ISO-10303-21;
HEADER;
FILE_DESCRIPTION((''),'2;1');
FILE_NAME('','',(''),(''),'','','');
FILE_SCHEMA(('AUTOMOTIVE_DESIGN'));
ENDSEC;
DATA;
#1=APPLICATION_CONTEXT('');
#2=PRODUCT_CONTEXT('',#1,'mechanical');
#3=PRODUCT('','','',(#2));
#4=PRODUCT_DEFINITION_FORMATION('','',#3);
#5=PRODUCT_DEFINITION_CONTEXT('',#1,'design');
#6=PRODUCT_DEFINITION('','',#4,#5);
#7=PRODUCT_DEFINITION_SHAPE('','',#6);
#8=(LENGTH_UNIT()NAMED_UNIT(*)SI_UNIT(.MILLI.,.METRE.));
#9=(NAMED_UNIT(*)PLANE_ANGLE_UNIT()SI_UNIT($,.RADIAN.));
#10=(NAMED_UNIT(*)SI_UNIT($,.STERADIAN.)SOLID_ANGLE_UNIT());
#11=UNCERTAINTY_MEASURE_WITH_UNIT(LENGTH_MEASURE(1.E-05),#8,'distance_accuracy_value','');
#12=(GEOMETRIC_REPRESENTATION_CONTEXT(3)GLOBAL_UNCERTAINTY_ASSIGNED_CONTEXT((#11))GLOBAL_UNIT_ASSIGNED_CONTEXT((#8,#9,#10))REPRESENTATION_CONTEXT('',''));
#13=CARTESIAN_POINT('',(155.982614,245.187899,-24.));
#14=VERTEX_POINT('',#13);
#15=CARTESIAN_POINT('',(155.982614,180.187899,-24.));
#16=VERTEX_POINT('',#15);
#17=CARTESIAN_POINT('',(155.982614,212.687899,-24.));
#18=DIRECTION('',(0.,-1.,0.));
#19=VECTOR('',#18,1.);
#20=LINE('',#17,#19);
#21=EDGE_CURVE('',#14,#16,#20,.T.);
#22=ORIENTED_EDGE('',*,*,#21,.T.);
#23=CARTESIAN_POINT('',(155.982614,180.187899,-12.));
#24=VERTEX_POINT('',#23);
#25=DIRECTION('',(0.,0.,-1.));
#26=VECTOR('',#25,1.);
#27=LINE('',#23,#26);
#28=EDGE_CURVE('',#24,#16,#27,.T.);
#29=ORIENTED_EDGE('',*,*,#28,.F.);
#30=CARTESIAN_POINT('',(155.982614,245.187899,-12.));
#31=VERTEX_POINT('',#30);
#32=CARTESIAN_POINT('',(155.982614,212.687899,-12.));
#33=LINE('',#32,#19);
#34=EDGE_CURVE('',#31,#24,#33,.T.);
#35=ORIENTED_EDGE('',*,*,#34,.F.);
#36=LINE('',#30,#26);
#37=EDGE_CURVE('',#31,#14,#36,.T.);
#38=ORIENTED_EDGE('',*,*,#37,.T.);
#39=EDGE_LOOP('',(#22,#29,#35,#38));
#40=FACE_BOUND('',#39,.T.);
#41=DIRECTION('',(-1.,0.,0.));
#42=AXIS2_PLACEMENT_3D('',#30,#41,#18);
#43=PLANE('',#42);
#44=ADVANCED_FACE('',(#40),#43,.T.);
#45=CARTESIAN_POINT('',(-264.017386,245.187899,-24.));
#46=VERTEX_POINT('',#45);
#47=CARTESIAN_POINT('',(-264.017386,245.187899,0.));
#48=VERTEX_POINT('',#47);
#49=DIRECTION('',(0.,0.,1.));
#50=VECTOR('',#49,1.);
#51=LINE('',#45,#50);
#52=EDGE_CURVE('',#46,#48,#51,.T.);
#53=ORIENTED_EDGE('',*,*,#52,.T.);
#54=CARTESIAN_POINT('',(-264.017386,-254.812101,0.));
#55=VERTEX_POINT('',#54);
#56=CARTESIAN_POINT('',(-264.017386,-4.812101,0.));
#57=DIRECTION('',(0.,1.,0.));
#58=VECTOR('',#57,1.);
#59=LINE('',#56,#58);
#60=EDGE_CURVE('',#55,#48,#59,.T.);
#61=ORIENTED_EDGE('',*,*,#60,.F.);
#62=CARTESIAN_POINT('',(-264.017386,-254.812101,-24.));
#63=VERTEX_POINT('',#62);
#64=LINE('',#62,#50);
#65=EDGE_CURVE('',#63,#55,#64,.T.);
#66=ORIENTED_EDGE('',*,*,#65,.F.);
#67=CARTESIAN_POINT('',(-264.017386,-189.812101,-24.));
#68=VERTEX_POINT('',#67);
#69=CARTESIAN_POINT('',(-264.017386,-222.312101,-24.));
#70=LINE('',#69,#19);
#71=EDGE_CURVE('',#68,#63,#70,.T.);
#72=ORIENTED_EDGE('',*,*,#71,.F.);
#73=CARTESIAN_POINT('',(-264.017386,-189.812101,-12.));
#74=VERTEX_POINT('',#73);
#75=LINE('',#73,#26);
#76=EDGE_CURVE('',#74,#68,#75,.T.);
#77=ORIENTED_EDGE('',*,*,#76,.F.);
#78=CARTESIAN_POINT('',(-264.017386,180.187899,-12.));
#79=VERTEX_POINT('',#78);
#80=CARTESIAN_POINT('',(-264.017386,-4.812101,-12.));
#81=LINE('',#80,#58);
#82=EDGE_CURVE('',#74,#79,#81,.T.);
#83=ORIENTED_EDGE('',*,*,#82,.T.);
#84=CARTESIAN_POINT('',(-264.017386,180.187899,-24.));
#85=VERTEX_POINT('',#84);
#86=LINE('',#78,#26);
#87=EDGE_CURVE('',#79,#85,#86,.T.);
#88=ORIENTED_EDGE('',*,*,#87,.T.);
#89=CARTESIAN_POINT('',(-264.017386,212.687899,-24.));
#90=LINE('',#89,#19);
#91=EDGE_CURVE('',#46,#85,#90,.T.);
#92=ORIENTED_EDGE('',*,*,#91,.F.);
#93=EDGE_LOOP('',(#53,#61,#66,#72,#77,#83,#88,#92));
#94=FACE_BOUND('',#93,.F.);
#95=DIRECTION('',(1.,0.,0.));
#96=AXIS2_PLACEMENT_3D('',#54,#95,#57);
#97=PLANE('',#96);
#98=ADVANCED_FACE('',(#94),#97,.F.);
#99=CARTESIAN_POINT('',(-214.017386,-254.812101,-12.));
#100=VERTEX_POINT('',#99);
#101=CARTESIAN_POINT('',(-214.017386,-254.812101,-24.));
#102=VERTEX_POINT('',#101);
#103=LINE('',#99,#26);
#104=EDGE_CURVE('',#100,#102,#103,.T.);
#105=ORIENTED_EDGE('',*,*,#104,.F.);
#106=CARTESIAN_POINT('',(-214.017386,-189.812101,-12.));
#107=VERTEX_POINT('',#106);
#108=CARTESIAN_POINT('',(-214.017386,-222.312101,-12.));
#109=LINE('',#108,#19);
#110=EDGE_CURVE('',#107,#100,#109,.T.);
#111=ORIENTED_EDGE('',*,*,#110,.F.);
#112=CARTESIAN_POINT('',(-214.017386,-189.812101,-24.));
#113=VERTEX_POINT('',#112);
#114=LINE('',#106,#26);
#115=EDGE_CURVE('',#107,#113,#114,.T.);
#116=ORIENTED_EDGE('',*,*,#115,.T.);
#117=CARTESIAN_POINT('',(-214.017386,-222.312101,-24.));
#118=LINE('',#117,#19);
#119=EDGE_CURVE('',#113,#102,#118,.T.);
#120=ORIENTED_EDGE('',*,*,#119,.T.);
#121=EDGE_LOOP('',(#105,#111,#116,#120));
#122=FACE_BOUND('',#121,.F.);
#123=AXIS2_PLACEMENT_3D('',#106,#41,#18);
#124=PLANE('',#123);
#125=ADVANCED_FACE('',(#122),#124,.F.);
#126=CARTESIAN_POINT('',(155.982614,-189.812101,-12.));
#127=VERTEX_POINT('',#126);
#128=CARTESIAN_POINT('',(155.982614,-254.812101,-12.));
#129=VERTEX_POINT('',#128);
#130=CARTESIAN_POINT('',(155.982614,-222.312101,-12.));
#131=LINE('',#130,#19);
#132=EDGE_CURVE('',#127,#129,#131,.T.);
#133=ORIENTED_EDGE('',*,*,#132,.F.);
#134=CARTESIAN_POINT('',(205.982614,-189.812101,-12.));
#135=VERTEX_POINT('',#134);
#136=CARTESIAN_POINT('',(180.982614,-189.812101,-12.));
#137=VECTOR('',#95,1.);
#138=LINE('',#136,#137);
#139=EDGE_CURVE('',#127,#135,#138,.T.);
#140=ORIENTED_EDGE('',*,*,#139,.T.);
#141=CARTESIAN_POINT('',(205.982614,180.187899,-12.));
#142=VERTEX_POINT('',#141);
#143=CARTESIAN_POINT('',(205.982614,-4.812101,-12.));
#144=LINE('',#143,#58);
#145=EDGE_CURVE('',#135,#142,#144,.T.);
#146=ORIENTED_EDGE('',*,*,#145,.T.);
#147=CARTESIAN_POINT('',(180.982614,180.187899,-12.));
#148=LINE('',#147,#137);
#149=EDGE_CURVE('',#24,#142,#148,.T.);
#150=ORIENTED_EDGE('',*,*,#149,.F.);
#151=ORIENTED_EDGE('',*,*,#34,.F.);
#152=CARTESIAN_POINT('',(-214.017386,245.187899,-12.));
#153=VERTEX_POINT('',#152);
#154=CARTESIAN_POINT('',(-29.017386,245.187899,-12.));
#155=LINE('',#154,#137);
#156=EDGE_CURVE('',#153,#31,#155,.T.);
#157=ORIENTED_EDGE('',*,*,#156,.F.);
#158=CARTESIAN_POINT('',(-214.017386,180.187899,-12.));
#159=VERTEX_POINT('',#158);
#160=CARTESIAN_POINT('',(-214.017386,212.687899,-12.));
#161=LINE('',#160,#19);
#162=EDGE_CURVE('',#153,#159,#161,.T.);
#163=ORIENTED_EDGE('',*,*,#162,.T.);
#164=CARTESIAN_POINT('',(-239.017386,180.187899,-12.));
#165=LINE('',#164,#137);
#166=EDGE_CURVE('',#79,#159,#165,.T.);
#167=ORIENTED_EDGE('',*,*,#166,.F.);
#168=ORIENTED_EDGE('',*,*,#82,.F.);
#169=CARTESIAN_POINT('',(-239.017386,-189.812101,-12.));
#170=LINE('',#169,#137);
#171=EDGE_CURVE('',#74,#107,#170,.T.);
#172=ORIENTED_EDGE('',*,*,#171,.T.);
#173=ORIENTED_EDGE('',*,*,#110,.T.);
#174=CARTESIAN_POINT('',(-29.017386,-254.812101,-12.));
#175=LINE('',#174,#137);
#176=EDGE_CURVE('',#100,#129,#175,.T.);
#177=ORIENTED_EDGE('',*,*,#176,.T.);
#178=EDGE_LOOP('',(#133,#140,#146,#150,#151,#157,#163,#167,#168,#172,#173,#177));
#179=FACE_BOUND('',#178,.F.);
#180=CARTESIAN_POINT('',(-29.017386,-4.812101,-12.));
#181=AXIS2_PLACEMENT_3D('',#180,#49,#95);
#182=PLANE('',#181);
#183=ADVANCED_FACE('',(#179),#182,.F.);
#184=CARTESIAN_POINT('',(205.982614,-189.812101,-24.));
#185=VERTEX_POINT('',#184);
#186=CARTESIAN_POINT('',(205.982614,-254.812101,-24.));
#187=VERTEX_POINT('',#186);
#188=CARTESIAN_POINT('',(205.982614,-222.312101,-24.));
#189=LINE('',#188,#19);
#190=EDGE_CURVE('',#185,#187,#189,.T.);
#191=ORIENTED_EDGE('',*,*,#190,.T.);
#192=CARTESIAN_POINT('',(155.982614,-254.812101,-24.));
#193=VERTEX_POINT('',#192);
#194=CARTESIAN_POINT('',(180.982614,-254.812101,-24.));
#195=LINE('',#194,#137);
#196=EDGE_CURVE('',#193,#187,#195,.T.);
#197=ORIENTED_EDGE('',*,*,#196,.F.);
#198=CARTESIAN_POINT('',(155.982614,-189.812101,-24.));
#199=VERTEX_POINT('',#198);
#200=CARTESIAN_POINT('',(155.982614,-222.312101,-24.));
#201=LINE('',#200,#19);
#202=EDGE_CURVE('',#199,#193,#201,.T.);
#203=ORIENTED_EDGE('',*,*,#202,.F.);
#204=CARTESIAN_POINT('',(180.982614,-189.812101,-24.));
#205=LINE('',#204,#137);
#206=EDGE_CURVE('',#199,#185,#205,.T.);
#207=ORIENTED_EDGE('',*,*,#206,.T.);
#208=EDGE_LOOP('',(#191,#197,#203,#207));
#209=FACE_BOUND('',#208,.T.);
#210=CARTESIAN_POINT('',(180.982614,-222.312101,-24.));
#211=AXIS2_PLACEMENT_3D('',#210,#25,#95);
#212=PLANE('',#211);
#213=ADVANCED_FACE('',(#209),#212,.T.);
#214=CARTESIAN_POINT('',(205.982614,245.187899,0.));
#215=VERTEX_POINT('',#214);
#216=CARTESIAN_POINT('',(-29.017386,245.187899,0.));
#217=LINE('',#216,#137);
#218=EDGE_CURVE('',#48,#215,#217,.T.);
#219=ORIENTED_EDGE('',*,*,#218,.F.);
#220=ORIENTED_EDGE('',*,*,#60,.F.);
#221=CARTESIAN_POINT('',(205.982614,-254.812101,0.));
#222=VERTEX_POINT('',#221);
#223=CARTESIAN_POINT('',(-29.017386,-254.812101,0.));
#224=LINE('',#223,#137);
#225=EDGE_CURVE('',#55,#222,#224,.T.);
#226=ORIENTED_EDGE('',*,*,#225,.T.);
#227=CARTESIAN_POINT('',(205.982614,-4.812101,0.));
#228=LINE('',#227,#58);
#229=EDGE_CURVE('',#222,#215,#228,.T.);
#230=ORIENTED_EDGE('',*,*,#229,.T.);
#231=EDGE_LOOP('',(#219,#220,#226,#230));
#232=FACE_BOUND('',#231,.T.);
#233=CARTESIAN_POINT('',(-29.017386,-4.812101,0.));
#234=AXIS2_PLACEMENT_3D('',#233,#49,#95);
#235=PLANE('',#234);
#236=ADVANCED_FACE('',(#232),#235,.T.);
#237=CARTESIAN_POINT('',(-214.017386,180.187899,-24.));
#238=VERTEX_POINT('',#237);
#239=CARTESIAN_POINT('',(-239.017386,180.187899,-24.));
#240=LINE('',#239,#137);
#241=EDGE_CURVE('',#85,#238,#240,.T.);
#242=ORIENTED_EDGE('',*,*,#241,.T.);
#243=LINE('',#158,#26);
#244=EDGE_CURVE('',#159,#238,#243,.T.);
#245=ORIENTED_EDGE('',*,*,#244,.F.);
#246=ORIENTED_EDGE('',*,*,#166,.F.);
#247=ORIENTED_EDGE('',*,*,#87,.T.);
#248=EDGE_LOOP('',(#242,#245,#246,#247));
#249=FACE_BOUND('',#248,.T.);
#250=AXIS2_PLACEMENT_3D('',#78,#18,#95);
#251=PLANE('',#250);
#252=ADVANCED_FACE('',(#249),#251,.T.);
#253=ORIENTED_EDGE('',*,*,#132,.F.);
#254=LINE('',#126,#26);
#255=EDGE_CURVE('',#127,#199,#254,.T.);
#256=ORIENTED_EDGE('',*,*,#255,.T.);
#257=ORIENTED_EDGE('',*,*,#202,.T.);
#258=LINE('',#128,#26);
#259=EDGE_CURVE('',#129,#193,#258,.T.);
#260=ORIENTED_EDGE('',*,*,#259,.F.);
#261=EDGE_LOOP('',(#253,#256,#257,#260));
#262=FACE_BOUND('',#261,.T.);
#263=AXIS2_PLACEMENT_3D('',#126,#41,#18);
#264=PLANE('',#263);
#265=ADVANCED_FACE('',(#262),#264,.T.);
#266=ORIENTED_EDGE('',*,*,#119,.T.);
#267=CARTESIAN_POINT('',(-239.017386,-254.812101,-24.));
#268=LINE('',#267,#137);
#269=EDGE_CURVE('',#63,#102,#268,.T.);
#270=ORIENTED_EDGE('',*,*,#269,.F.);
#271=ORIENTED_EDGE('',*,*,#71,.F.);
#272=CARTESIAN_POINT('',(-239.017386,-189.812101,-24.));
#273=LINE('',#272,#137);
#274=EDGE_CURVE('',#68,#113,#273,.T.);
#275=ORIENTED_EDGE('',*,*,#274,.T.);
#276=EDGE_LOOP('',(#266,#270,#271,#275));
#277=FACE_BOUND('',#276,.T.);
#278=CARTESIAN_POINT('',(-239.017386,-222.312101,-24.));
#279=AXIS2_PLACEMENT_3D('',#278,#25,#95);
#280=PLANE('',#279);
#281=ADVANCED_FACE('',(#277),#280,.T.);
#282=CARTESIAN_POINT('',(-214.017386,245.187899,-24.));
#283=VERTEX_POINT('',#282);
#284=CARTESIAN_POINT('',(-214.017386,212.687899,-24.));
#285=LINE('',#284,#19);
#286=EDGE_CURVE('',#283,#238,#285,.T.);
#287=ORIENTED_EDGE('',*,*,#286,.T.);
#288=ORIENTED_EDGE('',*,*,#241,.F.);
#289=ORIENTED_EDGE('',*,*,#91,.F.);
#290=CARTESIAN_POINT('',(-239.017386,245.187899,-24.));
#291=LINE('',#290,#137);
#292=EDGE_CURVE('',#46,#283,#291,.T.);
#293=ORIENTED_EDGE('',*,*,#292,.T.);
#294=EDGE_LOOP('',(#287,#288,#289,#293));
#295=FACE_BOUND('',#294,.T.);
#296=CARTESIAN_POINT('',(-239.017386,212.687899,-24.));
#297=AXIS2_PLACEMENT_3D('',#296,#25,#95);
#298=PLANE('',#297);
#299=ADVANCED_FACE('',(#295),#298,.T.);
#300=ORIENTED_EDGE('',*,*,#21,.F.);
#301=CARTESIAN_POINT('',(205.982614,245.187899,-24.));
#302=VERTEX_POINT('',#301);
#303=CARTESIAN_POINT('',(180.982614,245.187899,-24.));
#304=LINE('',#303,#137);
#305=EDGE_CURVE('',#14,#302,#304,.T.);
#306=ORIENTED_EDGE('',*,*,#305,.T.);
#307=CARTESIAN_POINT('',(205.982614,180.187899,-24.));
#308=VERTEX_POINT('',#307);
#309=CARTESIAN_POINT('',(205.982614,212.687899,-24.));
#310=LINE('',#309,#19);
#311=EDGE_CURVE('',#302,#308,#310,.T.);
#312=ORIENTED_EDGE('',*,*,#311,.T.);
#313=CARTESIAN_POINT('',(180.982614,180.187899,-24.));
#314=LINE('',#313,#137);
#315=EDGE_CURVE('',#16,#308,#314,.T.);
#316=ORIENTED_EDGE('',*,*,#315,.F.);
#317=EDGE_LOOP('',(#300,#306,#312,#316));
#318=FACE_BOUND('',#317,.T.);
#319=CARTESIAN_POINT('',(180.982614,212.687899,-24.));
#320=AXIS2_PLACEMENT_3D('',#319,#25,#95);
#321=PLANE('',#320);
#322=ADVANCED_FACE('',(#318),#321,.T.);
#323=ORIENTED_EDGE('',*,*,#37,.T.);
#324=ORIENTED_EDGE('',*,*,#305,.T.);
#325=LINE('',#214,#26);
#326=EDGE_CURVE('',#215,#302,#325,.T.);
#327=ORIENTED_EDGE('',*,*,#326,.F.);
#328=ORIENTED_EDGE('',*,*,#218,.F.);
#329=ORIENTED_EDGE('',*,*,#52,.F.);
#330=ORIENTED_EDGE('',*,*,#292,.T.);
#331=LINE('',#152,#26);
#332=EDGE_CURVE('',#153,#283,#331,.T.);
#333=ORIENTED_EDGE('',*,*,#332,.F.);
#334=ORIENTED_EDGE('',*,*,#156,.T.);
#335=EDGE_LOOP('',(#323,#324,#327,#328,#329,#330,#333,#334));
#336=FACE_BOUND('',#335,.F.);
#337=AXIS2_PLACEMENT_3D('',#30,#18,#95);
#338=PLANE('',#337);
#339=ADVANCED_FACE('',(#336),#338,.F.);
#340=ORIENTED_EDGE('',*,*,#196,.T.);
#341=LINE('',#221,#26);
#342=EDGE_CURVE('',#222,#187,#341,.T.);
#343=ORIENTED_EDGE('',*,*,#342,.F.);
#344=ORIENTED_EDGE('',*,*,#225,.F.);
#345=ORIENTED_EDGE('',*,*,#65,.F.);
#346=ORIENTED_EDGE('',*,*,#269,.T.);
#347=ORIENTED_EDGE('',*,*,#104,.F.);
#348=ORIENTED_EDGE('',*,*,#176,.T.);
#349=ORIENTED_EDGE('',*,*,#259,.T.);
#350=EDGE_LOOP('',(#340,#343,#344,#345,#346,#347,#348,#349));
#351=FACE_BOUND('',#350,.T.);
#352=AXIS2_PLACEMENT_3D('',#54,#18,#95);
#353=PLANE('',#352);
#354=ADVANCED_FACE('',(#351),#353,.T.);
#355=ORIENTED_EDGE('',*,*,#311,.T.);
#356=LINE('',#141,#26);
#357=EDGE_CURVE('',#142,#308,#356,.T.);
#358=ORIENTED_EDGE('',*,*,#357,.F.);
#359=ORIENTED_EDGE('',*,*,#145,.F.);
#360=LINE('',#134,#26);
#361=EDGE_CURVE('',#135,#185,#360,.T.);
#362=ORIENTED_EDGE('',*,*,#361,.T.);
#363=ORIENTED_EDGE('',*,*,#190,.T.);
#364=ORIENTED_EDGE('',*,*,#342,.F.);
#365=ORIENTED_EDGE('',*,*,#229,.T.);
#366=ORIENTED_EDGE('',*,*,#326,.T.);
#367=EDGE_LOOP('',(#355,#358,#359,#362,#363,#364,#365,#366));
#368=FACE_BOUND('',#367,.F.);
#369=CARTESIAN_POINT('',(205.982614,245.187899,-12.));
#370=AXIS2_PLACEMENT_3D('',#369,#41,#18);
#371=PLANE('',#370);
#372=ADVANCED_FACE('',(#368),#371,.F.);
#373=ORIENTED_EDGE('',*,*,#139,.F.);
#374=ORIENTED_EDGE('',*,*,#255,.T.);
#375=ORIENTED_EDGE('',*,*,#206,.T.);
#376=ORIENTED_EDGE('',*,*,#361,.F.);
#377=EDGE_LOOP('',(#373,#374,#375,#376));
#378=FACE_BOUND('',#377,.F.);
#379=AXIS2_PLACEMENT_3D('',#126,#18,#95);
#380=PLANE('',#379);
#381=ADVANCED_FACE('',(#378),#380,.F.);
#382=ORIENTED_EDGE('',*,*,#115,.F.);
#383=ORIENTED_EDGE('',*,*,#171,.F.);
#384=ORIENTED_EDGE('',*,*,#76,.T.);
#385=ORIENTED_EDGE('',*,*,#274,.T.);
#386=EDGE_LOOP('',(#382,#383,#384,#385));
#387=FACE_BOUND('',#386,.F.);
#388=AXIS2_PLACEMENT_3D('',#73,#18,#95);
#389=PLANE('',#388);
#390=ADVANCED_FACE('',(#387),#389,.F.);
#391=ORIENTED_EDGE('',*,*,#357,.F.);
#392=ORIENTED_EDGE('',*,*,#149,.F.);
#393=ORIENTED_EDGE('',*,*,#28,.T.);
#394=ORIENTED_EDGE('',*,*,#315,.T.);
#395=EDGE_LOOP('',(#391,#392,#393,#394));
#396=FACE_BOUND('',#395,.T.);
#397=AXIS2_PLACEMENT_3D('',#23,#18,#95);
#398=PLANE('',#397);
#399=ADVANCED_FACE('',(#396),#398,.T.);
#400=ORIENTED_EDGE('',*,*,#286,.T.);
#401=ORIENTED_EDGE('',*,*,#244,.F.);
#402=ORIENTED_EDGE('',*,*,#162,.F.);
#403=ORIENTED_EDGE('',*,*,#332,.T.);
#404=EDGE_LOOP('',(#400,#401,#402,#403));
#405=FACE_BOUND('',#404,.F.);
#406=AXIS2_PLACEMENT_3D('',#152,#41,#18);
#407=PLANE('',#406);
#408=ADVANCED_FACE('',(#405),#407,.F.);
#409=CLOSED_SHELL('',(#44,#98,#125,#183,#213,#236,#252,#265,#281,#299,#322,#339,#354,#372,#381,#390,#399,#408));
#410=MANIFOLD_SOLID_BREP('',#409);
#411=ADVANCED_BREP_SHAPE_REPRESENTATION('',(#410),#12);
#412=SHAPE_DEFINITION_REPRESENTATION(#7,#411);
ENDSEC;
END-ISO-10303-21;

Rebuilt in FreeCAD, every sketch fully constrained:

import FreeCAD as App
import Part
import Sketcher
from FreeCAD import Vector


def add_polygon(sketch, points):
    """Adds a closed chain of lines whose ends are joined by coincident constraints."""
    first, n = sketch.GeometryCount, len(points)
    for a, b in zip(points, points[1:] + points[:1]):
        sketch.addGeometry(Part.LineSegment(App.Vector(*a, 0), App.Vector(*b, 0)), False)
    for i in range(n):
        sketch.addConstraint(Sketcher.Constraint("Coincident", first + i, 2, first + (i + 1) % n, 1))

doc = App.newDocument("Part")
params = doc.addObject("Spreadsheet::Sheet", "Params")
for row, (alias, value) in enumerate([
    ("sketch1_width", "470 mm"),
    ("sketch1_height", "500 mm"),
    ("pad1_length", "12 mm"),
    ("sketch2_width", "50 mm"),
    ("sketch2_height", "65 mm"),
    ("pad2_length", "12 mm"),
], start=1):
    params.set(f"A{row}", alias)
    params.set(f"B{row}", "=" + value)
    params.setAlias(f"B{row}", alias)

body = doc.addObject("PartDesign::Body", "Body")

# Sketch on XY plane
sketch1 = body.newObject("Sketcher::SketchObject", "Sketch")
sketch1.AttachmentSupport = (doc.getObject("XY_Plane"), [""])
sketch1.MapMode = "FlatFace"
add_polygon(sketch1, [(-264.017386, 245.187899), (-264.017386, -254.812101), (205.982614, -254.812101), (205.982614, 245.187899)])  # lines 0-3
sketch1.addConstraint([
    Sketcher.Constraint("Vertical", 0),
    Sketcher.Constraint("Horizontal", 1),
    Sketcher.Constraint("Vertical", 2),
    Sketcher.Constraint("Horizontal", 3),
    Sketcher.Constraint("DistanceX", 1, 1, 1, 2, 470.0),
    Sketcher.Constraint("DistanceY", 0, 2, 0, 1, 500.0),
    Sketcher.Constraint("DistanceY", 0, 2, -1, 1, 254.812101),
    Sketcher.Constraint("DistanceX", 0, 2, -1, 1, 264.017386),
])
sketch1.setExpression("Constraints[8]", "Params.sketch1_width")
sketch1.setExpression("Constraints[9]", "Params.sketch1_height")
pad1 = body.newObject("PartDesign::Pad", "Pad")
pad1.Profile = sketch1
pad1.setExpression("Length", "Params.pad1_length")
pad1.Reversed = True

# Sketch on XY plane
sketch2 = body.newObject("Sketcher::SketchObject", "Sketch001")
sketch2.AttachmentSupport = (doc.getObject("XY_Plane"), [""])
sketch2.MapMode = "FlatFace"
sketch2.AttachmentOffset = App.Placement(Vector(0, 0, -12), App.Rotation())
add_polygon(sketch2, [(155.982614, 180.187899), (155.982614, 245.187899), (205.982614, 245.187899), (205.982614, 180.187899)])  # lines 0-3
add_polygon(sketch2, [(-264.017386, 180.187899), (-264.017386, 245.187899), (-214.017386, 245.187899), (-214.017386, 180.187899)])  # lines 4-7
add_polygon(sketch2, [(-264.017386, -254.812101), (-264.017386, -189.812101), (-214.017386, -189.812101), (-214.017386, -254.812101)])  # lines 8-11
add_polygon(sketch2, [(155.982614, -254.812101), (155.982614, -189.812101), (205.982614, -189.812101), (205.982614, -254.812101)])  # lines 12-15
sketch2.addConstraint([
    Sketcher.Constraint("Vertical", 0),
    Sketcher.Constraint("Horizontal", 1),
    Sketcher.Constraint("Vertical", 2),
    Sketcher.Constraint("Horizontal", 3),
    Sketcher.Constraint("Vertical", 4),
    Sketcher.Constraint("Horizontal", 5),
    Sketcher.Constraint("Vertical", 6),
    Sketcher.Constraint("Horizontal", 7),
    Sketcher.Constraint("Vertical", 8),
    Sketcher.Constraint("Horizontal", 9),
    Sketcher.Constraint("Vertical", 10),
    Sketcher.Constraint("Horizontal", 11),
    Sketcher.Constraint("Vertical", 12),
    Sketcher.Constraint("Horizontal", 13),
    Sketcher.Constraint("Vertical", 14),
    Sketcher.Constraint("Horizontal", 15),
    Sketcher.Constraint("Horizontal", 1, 2, 4, 2),
    Sketcher.Constraint("Horizontal", 3, 2, 6, 2),
    Sketcher.Constraint("Horizontal", 9, 2, 12, 2),
    Sketcher.Constraint("Horizontal", 11, 2, 14, 2),
    Sketcher.Constraint("Vertical", 7, 2, 8, 2),
    Sketcher.Constraint("Vertical", 6, 2, 9, 2),
    Sketcher.Constraint("Vertical", 3, 2, 12, 2),
    Sketcher.Constraint("Vertical", 2, 2, 13, 2),
    Sketcher.Constraint("Equal", 3, 5),
    Sketcher.Constraint("Equal", 6, 8),
    Sketcher.Constraint("DistanceX", 1, 1, 1, 2, 50.0),
    Sketcher.Constraint("DistanceY", 0, 1, 0, 2, 65.0),
    Sketcher.Constraint("DistanceX", 4, 2, 0, 2, 420.0),
    Sketcher.Constraint("DistanceY", 8, 2, 7, 2, 370.0),
    Sketcher.Constraint("DistanceY", -1, 1, 0, 2, 245.187899),
    Sketcher.Constraint("DistanceX", -1, 1, 0, 2, 155.982614),
])
sketch2.setExpression("Constraints[42]", "Params.sketch2_width")
sketch2.setExpression("Constraints[43]", "Params.sketch2_height")
pad2 = body.newObject("PartDesign::Pad", "Pad001")
pad2.Profile = sketch2
pad2.setExpression("Length", "Params.pad2_length")
pad2.Reversed = True

doc.recompute()
